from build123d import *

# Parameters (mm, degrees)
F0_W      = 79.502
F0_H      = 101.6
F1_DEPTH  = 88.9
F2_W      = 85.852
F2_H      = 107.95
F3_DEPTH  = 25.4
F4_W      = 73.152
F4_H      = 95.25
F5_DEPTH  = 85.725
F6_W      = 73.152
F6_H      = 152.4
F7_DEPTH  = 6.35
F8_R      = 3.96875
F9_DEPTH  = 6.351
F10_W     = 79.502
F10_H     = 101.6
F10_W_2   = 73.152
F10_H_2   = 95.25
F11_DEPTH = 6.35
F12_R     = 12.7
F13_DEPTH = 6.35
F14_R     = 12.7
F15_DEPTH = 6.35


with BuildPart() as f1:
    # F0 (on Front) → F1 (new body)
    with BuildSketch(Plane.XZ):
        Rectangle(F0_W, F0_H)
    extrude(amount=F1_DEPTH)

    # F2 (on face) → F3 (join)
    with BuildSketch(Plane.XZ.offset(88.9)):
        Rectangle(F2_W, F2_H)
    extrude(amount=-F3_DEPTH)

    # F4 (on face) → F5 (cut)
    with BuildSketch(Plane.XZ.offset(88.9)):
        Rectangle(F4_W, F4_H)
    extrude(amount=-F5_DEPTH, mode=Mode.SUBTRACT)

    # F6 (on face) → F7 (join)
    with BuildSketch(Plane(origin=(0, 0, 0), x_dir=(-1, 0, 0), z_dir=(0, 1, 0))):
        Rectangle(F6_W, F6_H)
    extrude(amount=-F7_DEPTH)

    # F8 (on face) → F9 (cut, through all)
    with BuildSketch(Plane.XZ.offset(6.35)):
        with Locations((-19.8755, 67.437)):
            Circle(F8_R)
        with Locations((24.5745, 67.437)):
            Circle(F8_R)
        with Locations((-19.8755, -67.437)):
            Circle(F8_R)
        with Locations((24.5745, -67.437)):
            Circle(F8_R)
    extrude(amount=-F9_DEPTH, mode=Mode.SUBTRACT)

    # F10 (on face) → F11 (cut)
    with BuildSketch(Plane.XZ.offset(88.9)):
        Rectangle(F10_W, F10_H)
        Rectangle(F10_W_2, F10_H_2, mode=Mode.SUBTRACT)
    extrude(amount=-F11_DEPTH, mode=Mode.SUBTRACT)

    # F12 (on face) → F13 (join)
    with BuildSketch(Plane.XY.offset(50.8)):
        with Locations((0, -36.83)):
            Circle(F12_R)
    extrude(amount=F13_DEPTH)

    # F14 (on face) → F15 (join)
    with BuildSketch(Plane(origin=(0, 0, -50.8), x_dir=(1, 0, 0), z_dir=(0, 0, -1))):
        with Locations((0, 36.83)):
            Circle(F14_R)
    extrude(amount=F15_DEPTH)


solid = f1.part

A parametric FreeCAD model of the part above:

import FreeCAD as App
import Part
import Sketcher
Q = App.Units.Quantity

doc = App.newDocument("Part")
params = doc.addObject("Spreadsheet::Sheet", "Params")
for row, (alias, value) in enumerate([
    ("sketch1_height", "4 in"),
    ("sketch1_width", "3.13 in"),
    ("pad1_length", "3.5 in"),
    ("sketch2_width", "3.38 in"),
    ("sketch2_height", "4.25 in"),
    ("pad2_length", "1 in"),
    ("sketch3_width", "2.88 in"),
    ("sketch3_height", "3.75 in"),
    ("pocket1_length", "3.375 in"),
    ("sketch4_height", "6 in"),
    ("sketch4_width", "2.88 in"),
    ("pad3_length", "0.25 in"),
    ("sketch5_diameter", "0.3125 in"),
    ("sketch6_height", "4 in"),
    ("sketch6_width", "3.13 in"),
    ("sketch6_width2", "2.88 in"),
    ("sketch6_height2", "3.75 in"),
    ("pocket3_length", "0.25 in"),
    ("sketch7_diameter", "1 in"),
    ("pad4_length", "0.25 in"),
    ("sketch8_diameter", "1 in"),
    ("pad5_length", "0.25 in"),
], start=1):
    params.set(f"A{row}", alias)
    params.set(f"B{row}", "=" + value)
    params.setAlias(f"B{row}", alias)

body = doc.addObject("PartDesign::Body", "Body")

# Sketch on XZ plane
sketch1 = body.newObject("Sketcher::SketchObject", "Sketch")
sketch1.AttachmentSupport = (doc.getObject("XZ_Plane"), [""])
sketch1.MapMode = "FlatFace"
sketch1.addGeometry([
    Part.LineSegment(App.Vector(-39.751, 50.8, 0), App.Vector(-39.751, -50.8, 0)),
    Part.LineSegment(App.Vector(-39.751, -50.8, 0), App.Vector(39.751, -50.8, 0)),
    Part.LineSegment(App.Vector(39.751, -50.8, 0), App.Vector(39.751, 50.8, 0)),
    Part.LineSegment(App.Vector(39.751, 50.8, 0), App.Vector(-39.751, 50.8, 0)),
], False)
sketch1.addConstraint([
    Sketcher.Constraint("Coincident", 0, 2, 1, 1),
    Sketcher.Constraint("Coincident", 1, 2, 2, 1),
    Sketcher.Constraint("Coincident", 2, 2, 3, 1),
    Sketcher.Constraint("Coincident", 3, 2, 0, 1),
    Sketcher.Constraint("Vertical", 0),
    Sketcher.Constraint("Horizontal", 1),
    Sketcher.Constraint("Vertical", 2),
    Sketcher.Constraint("Horizontal", 3),
    Sketcher.Constraint("Symmetric", 0, 2, 2, 2, -1, 1),
    Sketcher.Constraint("DistanceY", 0, 2, 0, 1, Q("4 in")),
    Sketcher.Constraint("DistanceX", 1, 1, 1, 2, Q("3.13 in")),
])
sketch1.setExpression("Constraints[9]", "Params.sketch1_height")
sketch1.setExpression("Constraints[10]", "Params.sketch1_width")
pad1 = body.newObject("PartDesign::Pad", "Pad")
pad1.Profile = sketch1
pad1.setExpression("Length", "Params.pad1_length")

# Sketch on XZ plane
sketch2 = body.newObject("Sketcher::SketchObject", "Sketch001")
sketch2.AttachmentSupport = (doc.getObject("XZ_Plane"), [""])
sketch2.MapMode = "FlatFace"
sketch2.AttachmentOffset = App.Placement(App.Vector(0, 0, 3.5 * 25.4), App.Rotation())
sketch2.addGeometry([
    Part.LineSegment(App.Vector(-42.926, 53.975, 0), App.Vector(-42.926, -53.975, 0)),
    Part.LineSegment(App.Vector(-42.926, -53.975, 0), App.Vector(42.926, -53.975, 0)),
    Part.LineSegment(App.Vector(42.926, -53.975, 0), App.Vector(42.926, 53.975, 0)),
    Part.LineSegment(App.Vector(42.926, 53.975, 0), App.Vector(-42.926, 53.975, 0)),
], False)
sketch2.addConstraint([
    Sketcher.Constraint("Coincident", 0, 2, 1, 1),
    Sketcher.Constraint("Coincident", 1, 2, 2, 1),
    Sketcher.Constraint("Coincident", 2, 2, 3, 1),
    Sketcher.Constraint("Coincident", 3, 2, 0, 1),
    Sketcher.Constraint("Vertical", 0),
    Sketcher.Constraint("Horizontal", 1),
    Sketcher.Constraint("Vertical", 2),
    Sketcher.Constraint("Horizontal", 3),
    Sketcher.Constraint("Symmetric", 0, 2, 2, 2, -1, 1),
    Sketcher.Constraint("DistanceX", 1, 1, 1, 2, Q("3.38 in")),
    Sketcher.Constraint("DistanceY", 0, 2, 0, 1, Q("4.25 in")),
])
sketch2.setExpression("Constraints[9]", "Params.sketch2_width")
sketch2.setExpression("Constraints[10]", "Params.sketch2_height")
pad2 = body.newObject("PartDesign::Pad", "Pad001")
pad2.Profile = sketch2
pad2.setExpression("Length", "Params.pad2_length")
pad2.Reversed = True

# Sketch on XZ plane
sketch3 = body.newObject("Sketcher::SketchObject", "Sketch002")
sketch3.AttachmentSupport = (doc.getObject("XZ_Plane"), [""])
sketch3.MapMode = "FlatFace"
sketch3.AttachmentOffset = App.Placement(App.Vector(0, 0, 3.5 * 25.4), App.Rotation())
sketch3.addGeometry([
    Part.LineSegment(App.Vector(-36.576, 47.625, 0), App.Vector(-36.576, -47.625, 0)),
    Part.LineSegment(App.Vector(-36.576, -47.625, 0), App.Vector(36.576, -47.625, 0)),
    Part.LineSegment(App.Vector(36.576, -47.625, 0), App.Vector(36.576, 47.625, 0)),
    Part.LineSegment(App.Vector(36.576, 47.625, 0), App.Vector(-36.576, 47.625, 0)),
], False)
sketch3.addConstraint([
    Sketcher.Constraint("Coincident", 0, 2, 1, 1),
    Sketcher.Constraint("Coincident", 1, 2, 2, 1),
    Sketcher.Constraint("Coincident", 2, 2, 3, 1),
    Sketcher.Constraint("Coincident", 3, 2, 0, 1),
    Sketcher.Constraint("Vertical", 0),
    Sketcher.Constraint("Horizontal", 1),
    Sketcher.Constraint("Vertical", 2),
    Sketcher.Constraint("Horizontal", 3),
    Sketcher.Constraint("Symmetric", 0, 2, 2, 2, -1, 1),
    Sketcher.Constraint("DistanceX", 1, 1, 1, 2, Q("2.88 in")),
    Sketcher.Constraint("DistanceY", 0, 2, 0, 1, Q("3.75 in")),
])
sketch3.setExpression("Constraints[9]", "Params.sketch3_width")
sketch3.setExpression("Constraints[10]", "Params.sketch3_height")
pocket1 = body.newObject("PartDesign::Pocket", "Pocket")
pocket1.Profile = sketch3
pocket1.setExpression("Length", "Params.pocket1_length")

# Sketch on XZ plane
sketch4 = body.newObject("Sketcher::SketchObject", "Sketch003")
sketch4.AttachmentSupport = (doc.getObject("XZ_Plane"), [""])
sketch4.MapMode = "FlatFace"
sketch4.addGeometry([
    Part.LineSegment(App.Vector(36.576, 76.2, 0), App.Vector(36.576, -76.2, 0)),
    Part.LineSegment(App.Vector(36.576, -76.2, 0), App.Vector(-36.576, -76.2, 0)),
    Part.LineSegment(App.Vector(-36.576, -76.2, 0), App.Vector(-36.576, 76.2, 0)),
    Part.LineSegment(App.Vector(-36.576, 76.2, 0), App.Vector(36.576, 76.2, 0)),
], False)
sketch4.addConstraint([
    Sketcher.Constraint("Coincident", 0, 2, 1, 1),
    Sketcher.Constraint("Coincident", 1, 2, 2, 1),
    Sketcher.Constraint("Coincident", 2, 2, 3, 1),
    Sketcher.Constraint("Coincident", 3, 2, 0, 1),
    Sketcher.Constraint("Vertical", 0),
    Sketcher.Constraint("Horizontal", 1),
    Sketcher.Constraint("Vertical", 2),
    Sketcher.Constraint("Horizontal", 3),
    Sketcher.Constraint("Symmetric", 0, 2, 2, 2, -1, 1),
    Sketcher.Constraint("DistanceY", 0, 2, 0, 1, Q("6 in")),
    Sketcher.Constraint("DistanceX", 1, 2, 1, 1, Q("2.88 in")),
])
sketch4.setExpression("Constraints[9]", "Params.sketch4_height")
sketch4.setExpression("Constraints[10]", "Params.sketch4_width")
pad3 = body.newObject("PartDesign::Pad", "Pad002")
pad3.Profile = sketch4
pad3.setExpression("Length", "Params.pad3_length")

# Sketch on XZ plane
sketch5 = body.newObject("Sketcher::SketchObject", "Sketch004")
sketch5.AttachmentSupport = (doc.getObject("XZ_Plane"), [""])
sketch5.MapMode = "FlatFace"
sketch5.AttachmentOffset = App.Placement(App.Vector(0, 0, 0.25 * 25.4), App.Rotation())
sketch5.addGeometry([
    Part.Circle(App.Vector(-19.8755, 67.437, 0), App.Vector(0, 0, 1), 3.96875),
    Part.Circle(App.Vector(24.5745, 67.437, 0), App.Vector(0, 0, 1), 3.96875),
    Part.Circle(App.Vector(-19.8755, -67.437, 0), App.Vector(0, 0, 1), 3.96875),
    Part.Circle(App.Vector(24.5745, -67.437, 0), App.Vector(0, 0, 1), 3.96875),
], False)
sketch5.addConstraint([
    Sketcher.Constraint("Equal", 0, 1),
    Sketcher.Constraint("Equal", 1, 2),
    Sketcher.Constraint("Equal", 2, 3),
    Sketcher.Constraint("Symmetric", 0, 3, 2, 3, -1),
    Sketcher.Constraint("Symmetric", 1, 3, 3, 3, -1),
    Sketcher.Constraint("Horizontal", 0, 3, 1, 3),
    Sketcher.Constraint("Diameter", 0, Q("0.3125 in")),
    Sketcher.Constraint("DistanceX", 0, 3, 1, 3, Q("1.75 in")),
    Sketcher.Constraint("DistanceY", 2, 3, 0, 3, Q("5.31 in")),
    Sketcher.Constraint("DistanceX", 0, 3, -1, 1, Q("0.7825 in")),
])
sketch5.setExpression("Constraints[6]", "Params.sketch5_diameter")
pocket2 = body.newObject("PartDesign::Pocket", "Pocket001")
pocket2.Profile = sketch5
pocket2.Type = "ThroughAll"

# Sketch on XZ plane
sketch6 = body.newObject("Sketcher::SketchObject", "Sketch005")
sketch6.AttachmentSupport = (doc.getObject("XZ_Plane"), [""])
sketch6.MapMode = "FlatFace"
sketch6.AttachmentOffset = App.Placement(App.Vector(0, 0, 3.5 * 25.4), App.Rotation())
sketch6.addGeometry([
    Part.LineSegment(App.Vector(-39.751, 50.8, 0), App.Vector(-39.751, -50.8, 0)),  # 0
    Part.LineSegment(App.Vector(-39.751, -50.8, 0), App.Vector(39.751, -50.8, 0)),  # 1
    Part.LineSegment(App.Vector(39.751, -50.8, 0), App.Vector(39.751, 50.8, 0)),  # 2
    Part.LineSegment(App.Vector(39.751, 50.8, 0), App.Vector(-39.751, 50.8, 0)),  # 3
    Part.LineSegment(App.Vector(36.576, -47.625, 0), App.Vector(-36.576, -47.625, 0)),  # 4
    Part.LineSegment(App.Vector(-36.576, -47.625, 0), App.Vector(-36.576, 47.625, 0)),  # 5
    Part.LineSegment(App.Vector(-36.576, 47.625, 0), App.Vector(36.576, 47.625, 0)),  # 6
    Part.LineSegment(App.Vector(36.576, 47.625, 0), App.Vector(36.576, -47.625, 0)),  # 7
], False)
sketch6.addConstraint([
    Sketcher.Constraint("Coincident", 0, 2, 1, 1),
    Sketcher.Constraint("Coincident", 1, 2, 2, 1),
    Sketcher.Constraint("Coincident", 2, 2, 3, 1),
    Sketcher.Constraint("Coincident", 3, 2, 0, 1),
    Sketcher.Constraint("Coincident", 4, 2, 5, 1),
    Sketcher.Constraint("Coincident", 5, 2, 6, 1),
    Sketcher.Constraint("Coincident", 6, 2, 7, 1),
    Sketcher.Constraint("Coincident", 7, 2, 4, 1),
    Sketcher.Constraint("Vertical", 0),
    Sketcher.Constraint("Horizontal", 1),
    Sketcher.Constraint("Vertical", 2),
    Sketcher.Constraint("Horizontal", 3),
    Sketcher.Constraint("Horizontal", 4),
    Sketcher.Constraint("Vertical", 5),
    Sketcher.Constraint("Horizontal", 6),
    Sketcher.Constraint("Vertical", 7),
    Sketcher.Constraint("Symmetric", 0, 2, 2, 2, -1, 1),
    Sketcher.Constraint("Symmetric", 4, 2, 6, 2, -1, 1),
    Sketcher.Constraint("DistanceY", 0, 2, 0, 1, Q("4 in")),
    Sketcher.Constraint("DistanceX", 1, 1, 1, 2, Q("3.13 in")),
    Sketcher.Constraint("DistanceX", 4, 2, 4, 1, Q("2.88 in")),
    Sketcher.Constraint("DistanceY", 5, 1, 5, 2, Q("3.75 in")),
])
sketch6.setExpression("Constraints[18]", "Params.sketch6_height")
sketch6.setExpression("Constraints[19]", "Params.sketch6_width")
sketch6.setExpression("Constraints[20]", "Params.sketch6_width2")
sketch6.setExpression("Constraints[21]", "Params.sketch6_height2")
pocket3 = body.newObject("PartDesign::Pocket", "Pocket002")
pocket3.Profile = sketch6
pocket3.setExpression("Length", "Params.pocket3_length")

# Sketch on XY plane
sketch7 = body.newObject("Sketcher::SketchObject", "Sketch006")
sketch7.AttachmentSupport = (doc.getObject("XY_Plane"), [""])
sketch7.MapMode = "FlatFace"
sketch7.AttachmentOffset = App.Placement(App.Vector(0, 0, 2 * 25.4), App.Rotation())
sketch7.addGeometry(Part.Circle(App.Vector(0, -36.83, 0), App.Vector(0, 0, 1), 12.7), False)
sketch7.addConstraint([
    Sketcher.Constraint("PointOnObject", 0, 3, -2),
    Sketcher.Constraint("Diameter", 0, Q("1 in")),
    Sketcher.Constraint("DistanceY", 0, 3, -1, 1, Q("1.45 in")),
])
sketch7.setExpression("Constraints[1]", "Params.sketch7_diameter")
pad4 = body.newObject("PartDesign::Pad", "Pad003")
pad4.Profile = sketch7
pad4.setExpression("Length", "Params.pad4_length")

# Sketch on XY plane
sketch8 = body.newObject("Sketcher::SketchObject", "Sketch007")
sketch8.AttachmentSupport = (doc.getObject("XY_Plane"), [""])
sketch8.MapMode = "FlatFace"
sketch8.AttachmentOffset = App.Placement(App.Vector(0, 0, -2 * 25.4), App.Rotation())
sketch8.addGeometry(Part.Circle(App.Vector(0, -36.83, 0), App.Vector(0, 0, 1), 12.7), False)
sketch8.addConstraint([
    Sketcher.Constraint("PointOnObject", 0, 3, -2),
    Sketcher.Constraint("Diameter", 0, Q("1 in")),
    Sketcher.Constraint("DistanceY", 0, 3, -1, 1, Q("1.45 in")),
])
sketch8.setExpression("Constraints[1]", "Params.sketch8_diameter")
pad5 = body.newObject("PartDesign::Pad", "Pad004")
pad5.Profile = sketch8
pad5.setExpression("Length", "Params.pad5_length")
pad5.Reversed = True

doc.recompute()
